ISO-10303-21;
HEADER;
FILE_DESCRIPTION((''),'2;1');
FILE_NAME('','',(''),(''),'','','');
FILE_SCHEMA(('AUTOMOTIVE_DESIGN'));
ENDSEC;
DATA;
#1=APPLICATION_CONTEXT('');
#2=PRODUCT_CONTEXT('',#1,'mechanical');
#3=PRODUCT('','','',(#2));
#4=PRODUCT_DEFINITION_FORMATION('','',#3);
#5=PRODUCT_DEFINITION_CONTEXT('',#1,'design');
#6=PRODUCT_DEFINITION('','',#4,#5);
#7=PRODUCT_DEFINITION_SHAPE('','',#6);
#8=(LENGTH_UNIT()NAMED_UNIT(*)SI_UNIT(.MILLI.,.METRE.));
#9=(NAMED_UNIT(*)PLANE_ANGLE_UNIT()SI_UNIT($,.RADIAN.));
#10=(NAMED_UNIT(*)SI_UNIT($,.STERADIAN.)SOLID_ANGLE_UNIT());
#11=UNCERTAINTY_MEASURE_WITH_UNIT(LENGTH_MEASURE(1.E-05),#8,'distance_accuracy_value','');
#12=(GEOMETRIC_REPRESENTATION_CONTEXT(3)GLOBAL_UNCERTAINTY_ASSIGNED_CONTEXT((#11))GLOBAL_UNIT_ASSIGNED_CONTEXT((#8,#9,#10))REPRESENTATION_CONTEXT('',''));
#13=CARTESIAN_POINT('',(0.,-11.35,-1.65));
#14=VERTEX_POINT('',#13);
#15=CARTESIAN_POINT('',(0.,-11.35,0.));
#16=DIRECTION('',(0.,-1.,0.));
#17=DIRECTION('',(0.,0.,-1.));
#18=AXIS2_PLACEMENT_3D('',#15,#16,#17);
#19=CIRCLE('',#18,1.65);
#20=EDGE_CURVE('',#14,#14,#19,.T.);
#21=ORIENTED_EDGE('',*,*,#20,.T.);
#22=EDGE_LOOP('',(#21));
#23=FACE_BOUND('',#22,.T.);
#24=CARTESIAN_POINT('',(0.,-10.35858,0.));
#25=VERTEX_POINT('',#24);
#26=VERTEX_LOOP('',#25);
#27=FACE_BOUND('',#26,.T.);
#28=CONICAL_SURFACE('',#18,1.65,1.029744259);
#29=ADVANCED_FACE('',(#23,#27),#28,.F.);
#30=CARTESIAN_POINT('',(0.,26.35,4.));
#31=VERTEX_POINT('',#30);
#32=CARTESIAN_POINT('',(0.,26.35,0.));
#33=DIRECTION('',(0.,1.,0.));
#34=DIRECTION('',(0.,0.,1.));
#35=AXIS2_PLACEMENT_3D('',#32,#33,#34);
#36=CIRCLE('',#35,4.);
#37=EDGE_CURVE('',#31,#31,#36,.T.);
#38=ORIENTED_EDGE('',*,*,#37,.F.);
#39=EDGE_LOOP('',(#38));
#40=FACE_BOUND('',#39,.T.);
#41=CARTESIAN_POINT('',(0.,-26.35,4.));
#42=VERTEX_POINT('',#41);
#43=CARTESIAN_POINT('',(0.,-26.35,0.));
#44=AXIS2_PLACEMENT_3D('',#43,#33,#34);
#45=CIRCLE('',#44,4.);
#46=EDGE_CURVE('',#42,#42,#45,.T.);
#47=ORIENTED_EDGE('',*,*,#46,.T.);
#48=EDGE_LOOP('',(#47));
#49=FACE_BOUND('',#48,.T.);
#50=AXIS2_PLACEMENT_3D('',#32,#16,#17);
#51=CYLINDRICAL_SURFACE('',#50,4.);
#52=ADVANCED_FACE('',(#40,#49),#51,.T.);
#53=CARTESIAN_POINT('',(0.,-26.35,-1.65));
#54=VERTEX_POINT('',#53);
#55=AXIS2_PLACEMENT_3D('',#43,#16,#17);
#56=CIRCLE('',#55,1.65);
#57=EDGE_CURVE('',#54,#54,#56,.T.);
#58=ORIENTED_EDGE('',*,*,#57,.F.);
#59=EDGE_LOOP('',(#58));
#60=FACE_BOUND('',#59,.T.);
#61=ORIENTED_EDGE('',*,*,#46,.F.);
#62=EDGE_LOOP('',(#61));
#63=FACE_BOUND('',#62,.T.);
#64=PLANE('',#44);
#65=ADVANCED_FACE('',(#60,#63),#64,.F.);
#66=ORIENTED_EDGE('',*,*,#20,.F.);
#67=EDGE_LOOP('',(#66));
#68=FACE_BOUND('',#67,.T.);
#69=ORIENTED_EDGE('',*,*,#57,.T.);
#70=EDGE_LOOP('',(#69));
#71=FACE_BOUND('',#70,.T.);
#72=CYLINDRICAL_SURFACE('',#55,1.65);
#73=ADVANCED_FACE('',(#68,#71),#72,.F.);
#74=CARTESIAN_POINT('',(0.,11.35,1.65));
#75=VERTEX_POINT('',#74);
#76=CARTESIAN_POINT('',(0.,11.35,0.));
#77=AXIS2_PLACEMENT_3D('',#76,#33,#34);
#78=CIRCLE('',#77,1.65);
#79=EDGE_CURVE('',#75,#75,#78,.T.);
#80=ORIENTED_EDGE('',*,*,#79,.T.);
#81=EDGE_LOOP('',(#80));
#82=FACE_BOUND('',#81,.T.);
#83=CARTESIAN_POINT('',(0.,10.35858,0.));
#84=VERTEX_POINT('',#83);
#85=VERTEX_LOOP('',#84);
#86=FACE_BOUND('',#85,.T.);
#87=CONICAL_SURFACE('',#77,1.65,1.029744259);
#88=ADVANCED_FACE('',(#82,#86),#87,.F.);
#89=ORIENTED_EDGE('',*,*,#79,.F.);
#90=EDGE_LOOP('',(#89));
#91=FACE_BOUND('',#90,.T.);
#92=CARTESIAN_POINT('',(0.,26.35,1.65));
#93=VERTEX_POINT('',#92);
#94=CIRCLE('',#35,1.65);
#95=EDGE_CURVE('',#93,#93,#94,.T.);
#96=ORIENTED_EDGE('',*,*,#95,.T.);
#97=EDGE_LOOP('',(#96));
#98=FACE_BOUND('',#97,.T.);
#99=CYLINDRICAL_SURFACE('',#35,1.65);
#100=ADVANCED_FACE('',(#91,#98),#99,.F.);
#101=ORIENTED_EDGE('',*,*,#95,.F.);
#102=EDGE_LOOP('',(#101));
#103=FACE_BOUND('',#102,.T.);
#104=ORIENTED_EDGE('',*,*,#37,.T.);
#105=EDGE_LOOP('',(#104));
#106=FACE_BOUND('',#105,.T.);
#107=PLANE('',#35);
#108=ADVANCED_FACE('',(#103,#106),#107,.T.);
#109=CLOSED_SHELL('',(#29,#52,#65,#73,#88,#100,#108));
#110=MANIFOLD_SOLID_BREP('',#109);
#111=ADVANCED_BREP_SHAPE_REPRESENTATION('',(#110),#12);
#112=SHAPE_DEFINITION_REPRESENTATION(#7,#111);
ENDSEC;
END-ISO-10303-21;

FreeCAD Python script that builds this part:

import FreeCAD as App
import Part
import Sketcher

doc = App.newDocument("Part")
body = doc.addObject("PartDesign::Body", "Body")

sketch1 = body.newObject("Sketcher::SketchObject", "Sketch")
sketch1.AttachmentSupport = (doc.getObject("XZ_Plane"), [""])
sketch1.MapMode = "FlatFace"
sketch1.addGeometry(Part.Circle(App.Vector(0, 0, 0), App.Vector(0, 0, 1), 4), False)
sketch1.addConstraint([
    Sketcher.Constraint("Coincident", 0, 3, -1, 1),
    Sketcher.Constraint("Diameter", 0, 8.0),
])
pad1 = body.newObject("PartDesign::Pad", "Pad")
pad1.Profile = sketch1
pad1.Length = 52.7
pad1.Midplane = True

sketch2 = body.newObject("Sketcher::SketchObject", "Sketch001")
sketch2.AttachmentSupport = (doc.getObject("XZ_Plane"), [""])
sketch2.MapMode = "FlatFace"
sketch2.AttachmentOffset = App.Placement(App.Vector(0, 0, -26.35), App.Rotation())
sketch2.addGeometry(Part.Circle(App.Vector(0, 0, 0), App.Vector(0, 0, 1), 1.65), False)
sketch2.addConstraint([
    Sketcher.Constraint("Coincident", 0, 3, -1, 1),
    Sketcher.Constraint("Diameter", 0, 3.3),
])
doc.recompute()
hole = body.newObject("PartDesign::Hole", "Hole")
hole.Profile = sketch2
hole.ThreadType = "None"
hole.Diameter = 3.3
hole.DepthType = "Dimension"
hole.Depth = 15
hole.DrillPoint = "Angled"
hole.DrillPointAngle = 118
hole.Reversed = True

sketch3 = body.newObject("Sketcher::SketchObject", "Sketch002")
sketch3.AttachmentSupport = (doc.getObject("XZ_Plane"), [""])
sketch3.MapMode = "FlatFace"
sketch3.AttachmentOffset = App.Placement(App.Vector(0, 0, 26.35), App.Rotation())
sketch3.addGeometry(Part.Circle(App.Vector(0, 0, 0), App.Vector(0, 0, 1), 1.65), False)
sketch3.addConstraint([
    Sketcher.Constraint("Coincident", 0, 3, -1, 1),
    Sketcher.Constraint("Diameter", 0, 3.3),
])
doc.recompute()
hole2 = body.newObject("PartDesign::Hole", "Hole001")
hole2.Profile = sketch3
hole2.ThreadType = "None"
hole2.Diameter = 3.3
hole2.DepthType = "Dimension"
hole2.Depth = 15
hole2.DrillPoint = "Angled"
hole2.DrillPointAngle = 118

doc.recompute()
